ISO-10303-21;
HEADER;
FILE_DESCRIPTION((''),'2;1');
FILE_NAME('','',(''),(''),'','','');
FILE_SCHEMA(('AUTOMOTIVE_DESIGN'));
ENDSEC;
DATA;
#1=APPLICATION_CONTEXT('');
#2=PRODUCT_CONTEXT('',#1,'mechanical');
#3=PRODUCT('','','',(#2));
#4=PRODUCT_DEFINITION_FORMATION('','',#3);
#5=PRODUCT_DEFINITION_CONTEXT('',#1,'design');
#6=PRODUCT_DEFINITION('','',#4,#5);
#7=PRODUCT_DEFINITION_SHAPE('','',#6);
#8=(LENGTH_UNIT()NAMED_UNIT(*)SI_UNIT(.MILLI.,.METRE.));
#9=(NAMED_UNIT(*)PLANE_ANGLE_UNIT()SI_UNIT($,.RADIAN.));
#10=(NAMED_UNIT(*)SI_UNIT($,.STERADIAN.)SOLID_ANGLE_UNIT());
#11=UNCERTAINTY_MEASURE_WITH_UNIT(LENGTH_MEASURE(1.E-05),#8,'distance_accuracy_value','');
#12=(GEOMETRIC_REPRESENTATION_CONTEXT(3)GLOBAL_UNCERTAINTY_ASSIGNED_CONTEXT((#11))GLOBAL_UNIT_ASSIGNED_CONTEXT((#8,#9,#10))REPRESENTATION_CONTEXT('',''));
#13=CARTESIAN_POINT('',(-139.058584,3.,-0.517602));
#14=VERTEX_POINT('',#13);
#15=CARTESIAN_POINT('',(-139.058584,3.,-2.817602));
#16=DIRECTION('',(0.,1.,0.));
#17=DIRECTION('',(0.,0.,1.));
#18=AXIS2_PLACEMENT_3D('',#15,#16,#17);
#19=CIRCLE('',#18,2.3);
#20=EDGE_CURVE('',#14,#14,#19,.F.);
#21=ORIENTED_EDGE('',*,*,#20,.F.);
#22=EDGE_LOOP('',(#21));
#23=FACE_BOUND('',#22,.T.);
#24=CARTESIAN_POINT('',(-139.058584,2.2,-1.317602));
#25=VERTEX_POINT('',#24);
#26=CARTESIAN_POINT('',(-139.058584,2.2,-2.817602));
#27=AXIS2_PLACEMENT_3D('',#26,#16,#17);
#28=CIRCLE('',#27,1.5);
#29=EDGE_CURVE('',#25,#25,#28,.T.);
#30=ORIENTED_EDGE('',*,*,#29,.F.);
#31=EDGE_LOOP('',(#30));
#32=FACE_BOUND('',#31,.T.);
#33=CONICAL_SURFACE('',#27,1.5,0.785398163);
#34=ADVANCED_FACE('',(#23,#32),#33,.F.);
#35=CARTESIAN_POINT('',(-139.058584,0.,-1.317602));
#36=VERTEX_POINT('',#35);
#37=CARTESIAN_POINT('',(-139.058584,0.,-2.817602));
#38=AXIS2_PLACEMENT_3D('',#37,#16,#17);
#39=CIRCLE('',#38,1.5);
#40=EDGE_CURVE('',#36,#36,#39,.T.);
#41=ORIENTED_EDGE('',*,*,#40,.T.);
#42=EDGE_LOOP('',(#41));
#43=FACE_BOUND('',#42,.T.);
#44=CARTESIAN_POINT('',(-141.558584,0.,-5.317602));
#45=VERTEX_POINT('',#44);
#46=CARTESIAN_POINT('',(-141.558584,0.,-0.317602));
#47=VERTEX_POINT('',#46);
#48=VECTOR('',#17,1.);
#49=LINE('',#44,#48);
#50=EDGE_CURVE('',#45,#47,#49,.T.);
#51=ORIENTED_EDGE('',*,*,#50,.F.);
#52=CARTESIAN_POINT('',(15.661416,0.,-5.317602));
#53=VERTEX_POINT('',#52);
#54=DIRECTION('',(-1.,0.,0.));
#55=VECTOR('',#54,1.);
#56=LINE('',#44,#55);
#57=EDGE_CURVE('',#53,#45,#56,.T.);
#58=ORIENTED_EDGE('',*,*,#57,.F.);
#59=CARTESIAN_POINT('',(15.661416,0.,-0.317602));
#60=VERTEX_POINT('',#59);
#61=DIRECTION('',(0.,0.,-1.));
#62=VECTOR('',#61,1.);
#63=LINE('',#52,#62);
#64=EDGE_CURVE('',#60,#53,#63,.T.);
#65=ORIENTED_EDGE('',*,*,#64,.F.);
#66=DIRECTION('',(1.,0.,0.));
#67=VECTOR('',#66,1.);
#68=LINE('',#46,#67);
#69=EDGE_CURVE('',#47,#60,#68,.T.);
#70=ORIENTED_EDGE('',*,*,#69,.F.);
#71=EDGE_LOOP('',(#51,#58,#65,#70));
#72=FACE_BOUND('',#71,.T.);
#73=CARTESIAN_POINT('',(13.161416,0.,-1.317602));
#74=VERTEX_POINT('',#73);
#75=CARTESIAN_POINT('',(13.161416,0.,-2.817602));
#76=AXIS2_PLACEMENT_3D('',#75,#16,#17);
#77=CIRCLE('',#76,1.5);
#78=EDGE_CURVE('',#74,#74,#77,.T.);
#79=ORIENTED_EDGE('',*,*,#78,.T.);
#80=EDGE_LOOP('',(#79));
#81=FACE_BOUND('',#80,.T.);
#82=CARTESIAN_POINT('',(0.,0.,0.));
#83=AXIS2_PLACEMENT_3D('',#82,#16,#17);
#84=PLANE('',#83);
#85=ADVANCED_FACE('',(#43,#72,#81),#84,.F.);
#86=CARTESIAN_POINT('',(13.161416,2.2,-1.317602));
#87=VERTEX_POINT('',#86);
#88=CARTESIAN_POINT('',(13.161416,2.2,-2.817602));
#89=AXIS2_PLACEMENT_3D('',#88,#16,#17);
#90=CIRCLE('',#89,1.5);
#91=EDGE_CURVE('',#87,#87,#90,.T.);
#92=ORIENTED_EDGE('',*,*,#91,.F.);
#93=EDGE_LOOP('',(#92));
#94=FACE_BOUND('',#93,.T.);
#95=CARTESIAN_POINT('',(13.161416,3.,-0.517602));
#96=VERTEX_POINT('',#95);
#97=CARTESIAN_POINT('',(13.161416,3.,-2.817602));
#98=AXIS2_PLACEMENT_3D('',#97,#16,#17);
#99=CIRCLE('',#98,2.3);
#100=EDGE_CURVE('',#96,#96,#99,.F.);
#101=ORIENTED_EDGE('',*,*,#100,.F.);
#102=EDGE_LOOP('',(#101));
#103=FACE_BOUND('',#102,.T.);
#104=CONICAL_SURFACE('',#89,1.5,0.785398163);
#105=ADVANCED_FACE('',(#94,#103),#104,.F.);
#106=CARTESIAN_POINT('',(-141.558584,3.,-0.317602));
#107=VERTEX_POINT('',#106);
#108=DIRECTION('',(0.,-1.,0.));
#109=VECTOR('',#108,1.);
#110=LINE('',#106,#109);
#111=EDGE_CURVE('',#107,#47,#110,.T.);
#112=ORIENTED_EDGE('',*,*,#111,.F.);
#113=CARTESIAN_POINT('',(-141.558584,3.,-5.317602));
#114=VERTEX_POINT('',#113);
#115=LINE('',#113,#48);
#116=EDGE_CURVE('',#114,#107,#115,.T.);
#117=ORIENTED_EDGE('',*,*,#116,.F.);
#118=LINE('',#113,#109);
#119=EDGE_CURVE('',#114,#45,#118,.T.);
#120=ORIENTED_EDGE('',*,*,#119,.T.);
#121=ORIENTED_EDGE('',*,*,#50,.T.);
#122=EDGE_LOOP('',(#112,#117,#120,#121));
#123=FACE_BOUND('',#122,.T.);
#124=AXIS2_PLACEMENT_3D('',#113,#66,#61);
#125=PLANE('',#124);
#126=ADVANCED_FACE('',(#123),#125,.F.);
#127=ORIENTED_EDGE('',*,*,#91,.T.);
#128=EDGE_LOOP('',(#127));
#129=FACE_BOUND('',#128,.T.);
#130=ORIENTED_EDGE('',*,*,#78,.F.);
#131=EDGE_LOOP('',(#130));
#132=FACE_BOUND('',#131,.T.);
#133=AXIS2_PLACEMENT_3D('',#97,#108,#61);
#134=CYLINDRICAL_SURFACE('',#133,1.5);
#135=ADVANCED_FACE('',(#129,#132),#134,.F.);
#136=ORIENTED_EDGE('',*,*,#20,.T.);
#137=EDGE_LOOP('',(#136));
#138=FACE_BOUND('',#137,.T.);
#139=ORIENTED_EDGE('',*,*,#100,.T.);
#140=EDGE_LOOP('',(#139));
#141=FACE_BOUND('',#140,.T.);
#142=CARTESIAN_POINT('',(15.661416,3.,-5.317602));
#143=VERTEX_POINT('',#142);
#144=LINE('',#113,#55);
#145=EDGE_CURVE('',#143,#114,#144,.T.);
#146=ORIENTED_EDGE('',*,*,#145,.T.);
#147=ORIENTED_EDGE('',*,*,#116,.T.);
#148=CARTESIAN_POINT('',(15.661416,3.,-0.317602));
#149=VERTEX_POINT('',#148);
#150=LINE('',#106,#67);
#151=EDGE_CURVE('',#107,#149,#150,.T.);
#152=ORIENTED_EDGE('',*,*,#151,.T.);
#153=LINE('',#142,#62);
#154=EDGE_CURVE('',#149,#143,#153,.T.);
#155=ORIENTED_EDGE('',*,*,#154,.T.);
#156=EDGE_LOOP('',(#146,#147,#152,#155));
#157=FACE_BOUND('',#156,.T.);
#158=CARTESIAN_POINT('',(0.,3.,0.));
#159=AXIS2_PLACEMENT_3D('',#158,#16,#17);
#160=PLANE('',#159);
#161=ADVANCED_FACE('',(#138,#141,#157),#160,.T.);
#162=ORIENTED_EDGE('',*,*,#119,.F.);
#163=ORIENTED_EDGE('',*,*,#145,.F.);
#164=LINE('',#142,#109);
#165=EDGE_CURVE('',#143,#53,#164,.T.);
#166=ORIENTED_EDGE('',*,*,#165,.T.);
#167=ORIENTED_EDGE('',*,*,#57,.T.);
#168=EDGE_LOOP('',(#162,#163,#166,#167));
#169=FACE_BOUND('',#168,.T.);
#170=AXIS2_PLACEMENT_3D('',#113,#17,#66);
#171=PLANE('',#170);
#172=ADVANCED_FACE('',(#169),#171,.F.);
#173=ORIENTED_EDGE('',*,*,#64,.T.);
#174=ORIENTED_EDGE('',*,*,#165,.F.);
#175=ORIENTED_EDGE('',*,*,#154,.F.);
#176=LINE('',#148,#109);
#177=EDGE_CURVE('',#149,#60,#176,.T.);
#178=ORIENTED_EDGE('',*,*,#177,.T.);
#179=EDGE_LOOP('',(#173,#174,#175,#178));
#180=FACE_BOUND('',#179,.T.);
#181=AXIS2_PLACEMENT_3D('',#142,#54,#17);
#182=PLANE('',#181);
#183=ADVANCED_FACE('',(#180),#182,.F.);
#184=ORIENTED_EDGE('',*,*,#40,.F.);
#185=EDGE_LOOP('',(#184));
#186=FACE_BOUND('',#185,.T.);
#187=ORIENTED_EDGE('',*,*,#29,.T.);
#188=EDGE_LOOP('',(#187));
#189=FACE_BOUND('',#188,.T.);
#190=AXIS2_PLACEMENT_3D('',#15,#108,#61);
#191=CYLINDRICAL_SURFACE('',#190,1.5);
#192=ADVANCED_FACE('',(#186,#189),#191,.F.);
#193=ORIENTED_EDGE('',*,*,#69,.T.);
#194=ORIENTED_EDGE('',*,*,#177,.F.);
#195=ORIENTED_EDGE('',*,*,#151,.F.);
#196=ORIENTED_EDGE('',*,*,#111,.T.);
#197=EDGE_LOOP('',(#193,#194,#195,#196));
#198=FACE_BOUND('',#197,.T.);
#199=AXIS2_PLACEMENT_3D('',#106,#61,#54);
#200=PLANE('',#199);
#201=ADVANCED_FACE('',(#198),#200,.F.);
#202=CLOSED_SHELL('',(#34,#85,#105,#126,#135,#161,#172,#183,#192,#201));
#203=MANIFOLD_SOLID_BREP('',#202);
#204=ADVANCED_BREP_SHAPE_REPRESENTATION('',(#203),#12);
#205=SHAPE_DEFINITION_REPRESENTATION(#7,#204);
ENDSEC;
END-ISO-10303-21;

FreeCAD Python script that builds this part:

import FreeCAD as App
import Part
import Sketcher

V = App.Vector
Q = App.Units.Quantity


def edges_at(feature, points):
    """Names of the edges that pass closest to the given points."""
    edges = feature.Shape.Edges
    near = lambda p: min(range(len(edges)), key=lambda i: edges[i].distToShape(Part.Vertex(*p))[0])
    return sorted({f"Edge{near(p) + 1}" for p in points})

doc = App.newDocument("Part")
body = doc.addObject("PartDesign::Body", "Body")

# Sketch on XZ plane
sketch1 = doc.addObject("Sketcher::SketchObject", "Sketch")
body.addObject(sketch1)
sketch1.AttachmentSupport = (doc.XZ_Plane, [""])
sketch1.MapMode = "FlatFace"
sketch1.addGeometry([
    Part.LineSegment(V(-141.6, -5.3, 0), V(-141.6, -0.3, 0)),  # 0
    Part.LineSegment(V(-141.6, -0.3, 0), V(15.7, -0.3, 0)),  # 1
    Part.LineSegment(V(15.7, -0.3, 0), V(15.7, -5.3, 0)),  # 2
    Part.LineSegment(V(15.7, -5.3, 0), V(-141.6, -5.3, 0)),  # 3
    Part.Circle(V(-139.1, -2.8, 0), V(0, 0, 1), 1.5),  # 4
    Part.Circle(V(13.2, -2.8, 0), V(0, 0, 1), 1.5),  # 5
], False)
sketch1.addConstraint([
    Sketcher.Constraint("Coincident", 0, 2, 1, 1),
    Sketcher.Constraint("Coincident", 1, 2, 2, 1),
    Sketcher.Constraint("Coincident", 2, 2, 3, 1),
    Sketcher.Constraint("Coincident", 3, 2, 0, 1),
    Sketcher.Constraint("Vertical", 0),
    Sketcher.Constraint("Horizontal", 1),
    Sketcher.Constraint("Vertical", 2),
    Sketcher.Constraint("Horizontal", 3),
    Sketcher.Constraint("Equal", 4, 5),
    Sketcher.Constraint("Horizontal", 4, 3, 5, 3),
    Sketcher.Constraint("Diameter", 4, Q("3 mm")),
    Sketcher.Constraint("DistanceY", 0, 1, 0, 2, Q("5 mm")),
    Sketcher.Constraint("DistanceX", 1, 1, 1, 2, Q("157.22 mm")),
    Sketcher.Constraint("DistanceX", 0, 2, 4, 3, Q("2.5 mm")),
    Sketcher.Constraint("DistanceY", 4, 3, 0, 2, Q("2.5 mm")),
    Sketcher.Constraint("DistanceX", 5, 3, 1, 2, Q("2.5 mm")),
    Sketcher.Constraint("DistanceX", 4, 3, -1, 1, Q("139.058584 mm")),
    Sketcher.Constraint("DistanceY", 4, 3, -1, 1, Q("2.817602 mm")),
])
pad1 = doc.addObject("PartDesign::Pad", "Pad")
body.addObject(pad1)
pad1.Profile = sketch1
pad1.Length = 3
pad1.Reversed = True
doc.recompute()

chamfer = doc.addObject("PartDesign::Chamfer", "Chamfer")
body.addObject(chamfer)
chamfer.Base = (pad1, edges_at(pad1, [(13.161, 3, -4.318), (-139.059, 3, -4.318)]))
chamfer.Size = 0.8

doc.recompute()
